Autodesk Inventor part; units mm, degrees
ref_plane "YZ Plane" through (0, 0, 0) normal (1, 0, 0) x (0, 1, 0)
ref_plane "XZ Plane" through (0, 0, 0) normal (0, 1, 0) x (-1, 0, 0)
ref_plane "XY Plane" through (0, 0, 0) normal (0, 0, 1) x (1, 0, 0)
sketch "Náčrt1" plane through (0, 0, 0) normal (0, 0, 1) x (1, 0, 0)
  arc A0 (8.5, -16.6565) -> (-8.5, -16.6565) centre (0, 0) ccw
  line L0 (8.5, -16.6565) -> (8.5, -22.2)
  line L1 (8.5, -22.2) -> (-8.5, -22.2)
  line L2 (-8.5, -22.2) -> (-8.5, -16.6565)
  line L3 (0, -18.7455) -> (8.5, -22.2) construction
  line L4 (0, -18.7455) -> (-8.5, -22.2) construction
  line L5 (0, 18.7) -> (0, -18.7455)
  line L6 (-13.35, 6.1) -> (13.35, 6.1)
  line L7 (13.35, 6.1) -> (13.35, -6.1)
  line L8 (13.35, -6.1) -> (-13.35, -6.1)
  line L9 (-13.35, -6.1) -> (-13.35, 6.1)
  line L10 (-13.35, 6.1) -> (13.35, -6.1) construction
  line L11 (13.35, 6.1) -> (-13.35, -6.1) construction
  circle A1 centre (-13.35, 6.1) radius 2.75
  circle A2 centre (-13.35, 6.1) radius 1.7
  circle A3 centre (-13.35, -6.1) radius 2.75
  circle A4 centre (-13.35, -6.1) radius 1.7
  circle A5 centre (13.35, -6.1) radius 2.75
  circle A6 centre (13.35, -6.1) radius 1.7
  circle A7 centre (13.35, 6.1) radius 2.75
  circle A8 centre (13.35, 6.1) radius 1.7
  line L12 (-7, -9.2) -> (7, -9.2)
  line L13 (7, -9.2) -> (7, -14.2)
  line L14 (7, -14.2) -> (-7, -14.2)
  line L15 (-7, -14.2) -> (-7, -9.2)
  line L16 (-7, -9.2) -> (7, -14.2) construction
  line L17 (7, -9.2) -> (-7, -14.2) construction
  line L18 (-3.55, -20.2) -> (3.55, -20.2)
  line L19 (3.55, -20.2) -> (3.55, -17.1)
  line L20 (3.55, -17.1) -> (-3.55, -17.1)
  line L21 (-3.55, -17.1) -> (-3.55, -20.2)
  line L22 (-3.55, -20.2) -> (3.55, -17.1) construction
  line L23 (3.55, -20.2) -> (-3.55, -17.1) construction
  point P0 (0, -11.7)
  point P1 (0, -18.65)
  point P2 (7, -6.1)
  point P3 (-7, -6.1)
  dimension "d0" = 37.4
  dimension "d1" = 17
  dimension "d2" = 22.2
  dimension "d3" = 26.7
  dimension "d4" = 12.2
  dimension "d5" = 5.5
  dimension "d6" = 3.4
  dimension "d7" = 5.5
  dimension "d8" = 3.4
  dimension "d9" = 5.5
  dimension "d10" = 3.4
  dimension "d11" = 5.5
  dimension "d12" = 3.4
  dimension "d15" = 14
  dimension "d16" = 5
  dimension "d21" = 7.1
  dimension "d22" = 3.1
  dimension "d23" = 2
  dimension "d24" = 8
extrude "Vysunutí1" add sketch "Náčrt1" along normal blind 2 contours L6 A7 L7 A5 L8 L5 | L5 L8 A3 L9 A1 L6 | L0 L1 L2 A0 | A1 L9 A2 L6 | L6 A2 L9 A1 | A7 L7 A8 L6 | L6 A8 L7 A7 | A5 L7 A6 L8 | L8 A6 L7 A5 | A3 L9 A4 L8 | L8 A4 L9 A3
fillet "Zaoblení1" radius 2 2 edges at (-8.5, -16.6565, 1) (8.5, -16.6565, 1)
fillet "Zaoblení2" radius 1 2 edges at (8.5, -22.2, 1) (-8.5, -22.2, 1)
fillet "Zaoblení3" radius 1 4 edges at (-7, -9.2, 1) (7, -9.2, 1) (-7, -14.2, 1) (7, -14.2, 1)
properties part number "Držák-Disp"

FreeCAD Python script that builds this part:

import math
import FreeCAD as App
import Part
import Sketcher

V = App.Vector


def edges_at(feature, points):
    """Names of the edges that pass closest to the given points."""
    edges = feature.Shape.Edges
    near = lambda p: min(range(len(edges)), key=lambda i: edges[i].distToShape(Part.Vertex(*p))[0])
    return sorted({f"Edge{near(p) + 1}" for p in points})


def add_polygon(sketch, points):
    """Adds a closed chain of lines whose ends are joined by coincident constraints."""
    first, n = sketch.GeometryCount, len(points)
    for a, b in zip(points, points[1:] + points[:1]):
        sketch.addGeometry(Part.LineSegment(App.Vector(*a, 0), App.Vector(*b, 0)), False)
    for i in range(n):
        sketch.addConstraint(Sketcher.Constraint("Coincident", first + i, 2, first + (i + 1) % n, 1))

doc = App.newDocument("Part")
body = doc.addObject("PartDesign::Body", "Body")

sketch1 = body.newObject("Sketcher::SketchObject", "Sketch")
sketch1.AttachmentSupport = (doc.getObject("XY_Plane"), [""])
sketch1.MapMode = "FlatFace"
sketch1.addGeometry(Part.LineSegment(V(8.5, -22.2, 0), V(8.5, -16.7, 0)), False)
sketch1.addGeometry(Part.ArcOfCircle(Part.Circle(V(0, 0, 0), V(0, 0, 1), 18.7), math.radians(-63), math.radians(90)), False)
sketch1.addGeometry(Part.ArcOfCircle(Part.Circle(V(0, 0, 0), V(0, 0, 1), 18.7), math.radians(90), math.radians(243)), False)
sketch1.addGeometry(Part.LineSegment(V(-8.5, -16.7, 0), V(-8.5, -22.2, 0)), False)
sketch1.addGeometry(Part.LineSegment(V(-8.5, -22.2, 0), V(8.5, -22.2, 0)), False)
add_polygon(sketch1, [(-3.5, -17.1), (0, -17.1), (3.5, -17.1), (3.5, -20.2), (-3.5, -20.2)])
add_polygon(sketch1, [(-7, -9.2), (0, -9.2), (7, -9.2), (7, -14.2), (0, -14.2), (-7, -14.2)])
sketch1.addGeometry(Part.Circle(V(13.3, 6.1, 0), V(0, 0, 1), 1.7), False)
sketch1.addGeometry(Part.Circle(V(13.3, -6.1, 0), V(0, 0, 1), 1.7), False)
sketch1.addGeometry(Part.Circle(V(-13.3, 6.1, 0), V(0, 0, 1), 1.7), False)
sketch1.addGeometry(Part.Circle(V(-13.3, -6.1, 0), V(0, 0, 1), 1.7), False)
sketch1.addConstraint(Sketcher.Constraint("Coincident", 0, 2, 1, 1))
sketch1.addConstraint(Sketcher.Constraint("Tangent", 1, 2, 2, 1))
sketch1.addConstraint(Sketcher.Constraint("Coincident", 2, 2, 3, 1))
sketch1.addConstraint(Sketcher.Constraint("Coincident", 3, 2, 4, 1))
sketch1.addConstraint(Sketcher.Constraint("Coincident", 4, 2, 0, 1))
sketch1.addConstraint(Sketcher.Constraint("Vertical", 0))
sketch1.addConstraint(Sketcher.Constraint("Vertical", 3))
sketch1.addConstraint(Sketcher.Constraint("Horizontal", 4))
sketch1.addConstraint(Sketcher.Constraint("Horizontal", 5))
sketch1.addConstraint(Sketcher.Constraint("Horizontal", 6))
sketch1.addConstraint(Sketcher.Constraint("Vertical", 7))
sketch1.addConstraint(Sketcher.Constraint("Horizontal", 8))
sketch1.addConstraint(Sketcher.Constraint("Vertical", 9))
sketch1.addConstraint(Sketcher.Constraint("Horizontal", 10))
sketch1.addConstraint(Sketcher.Constraint("Horizontal", 11))
sketch1.addConstraint(Sketcher.Constraint("Vertical", 12))
sketch1.addConstraint(Sketcher.Constraint("Horizontal", 13))
sketch1.addConstraint(Sketcher.Constraint("Horizontal", 14))
sketch1.addConstraint(Sketcher.Constraint("Vertical", 15))
sketch1.addConstraint(Sketcher.Constraint("Coincident", 1, 3, -1, 1))
sketch1.addConstraint(Sketcher.Constraint("Equal", 1, 2))
sketch1.addConstraint(Sketcher.Constraint("Equal", 16, 17))
sketch1.addConstraint(Sketcher.Constraint("Equal", 17, 18))
sketch1.addConstraint(Sketcher.Constraint("Equal", 18, 19))
sketch1.addConstraint(Sketcher.Constraint("Symmetric", 17, 3, 18, 3, -1, 1))
sketch1.addConstraint(Sketcher.Constraint("Symmetric", 16, 3, 19, 3, -1, 1))
sketch1.addConstraint(Sketcher.Constraint("Symmetric", 16, 3, 18, 3, -2))
sketch1.addConstraint(Sketcher.Constraint("PointOnObject", 1, 2, -2))
sketch1.addConstraint(Sketcher.Constraint("PointOnObject", 5, 2, -2))
sketch1.addConstraint(Sketcher.Constraint("PointOnObject", 10, 2, -2))
sketch1.addConstraint(Sketcher.Constraint("PointOnObject", 13, 2, -2))
sketch1.addConstraint(Sketcher.Constraint("Horizontal", 0, 2, 2, 2))
sketch1.addConstraint(Sketcher.Constraint("Equal", 5, 6))
sketch1.addConstraint(Sketcher.Constraint("Equal", 10, 11))
sketch1.addConstraint(Sketcher.Constraint("Diameter", 16, 3.4))
sketch1.addConstraint(Sketcher.Constraint("Radius", 1, 18.7))
sketch1.addConstraint(Sketcher.Constraint("DistanceX", 4, 1, 4, 2, 17.0))
sketch1.addConstraint(Sketcher.Constraint("DistanceY", 12, 2, 12, 1, 5.0))
sketch1.addConstraint(Sketcher.Constraint("DistanceX", 8, 2, 8, 1, 7.1))
sketch1.addConstraint(Sketcher.Constraint("DistanceY", 7, 2, 7, 1, 3.1))
sketch1.addConstraint(Sketcher.Constraint("DistanceY", 4, 2, 7, 2, 2.0))
sketch1.addConstraint(Sketcher.Constraint("DistanceY", 3, 2, -1, 1, 22.2))
sketch1.addConstraint(Sketcher.Constraint("DistanceY", 17, 3, 16, 3, 12.2))
sketch1.addConstraint(Sketcher.Constraint("DistanceX", 18, 3, 16, 3, 26.7))
sketch1.addConstraint(Sketcher.Constraint("DistanceY", 11, 2, 17, 3, 3.1))
sketch1.addConstraint(Sketcher.Constraint("DistanceX", 10, 1, 10, 2, 7.0))
pad1 = body.newObject("PartDesign::Pad", "Pad")
pad1.Profile = sketch1
pad1.Length = 2
doc.recompute()

fillet = body.newObject("PartDesign::Fillet", "Fillet")
fillet.Base = (pad1, edges_at(pad1, [(-8.5, -16.657, 1), (8.5, -16.657, 1)]))
fillet.Radius = 2
doc.recompute()

fillet2 = body.newObject("PartDesign::Fillet", "Fillet001")
fillet2.Base = (fillet, edges_at(fillet, [(8.5, -22.2, 1), (-8.5, -22.2, 1)]))
fillet2.Radius = 1
doc.recompute()

fillet3 = body.newObject("PartDesign::Fillet", "Fillet002")
fillet3.Base = (fillet2, edges_at(fillet2, [
    (-7, -9.2, 1),
    (7, -9.2, 1),
    (-7, -14.2, 1),
    (7, -14.2, 1),
]))
fillet3.Radius = 1

doc.recompute()
